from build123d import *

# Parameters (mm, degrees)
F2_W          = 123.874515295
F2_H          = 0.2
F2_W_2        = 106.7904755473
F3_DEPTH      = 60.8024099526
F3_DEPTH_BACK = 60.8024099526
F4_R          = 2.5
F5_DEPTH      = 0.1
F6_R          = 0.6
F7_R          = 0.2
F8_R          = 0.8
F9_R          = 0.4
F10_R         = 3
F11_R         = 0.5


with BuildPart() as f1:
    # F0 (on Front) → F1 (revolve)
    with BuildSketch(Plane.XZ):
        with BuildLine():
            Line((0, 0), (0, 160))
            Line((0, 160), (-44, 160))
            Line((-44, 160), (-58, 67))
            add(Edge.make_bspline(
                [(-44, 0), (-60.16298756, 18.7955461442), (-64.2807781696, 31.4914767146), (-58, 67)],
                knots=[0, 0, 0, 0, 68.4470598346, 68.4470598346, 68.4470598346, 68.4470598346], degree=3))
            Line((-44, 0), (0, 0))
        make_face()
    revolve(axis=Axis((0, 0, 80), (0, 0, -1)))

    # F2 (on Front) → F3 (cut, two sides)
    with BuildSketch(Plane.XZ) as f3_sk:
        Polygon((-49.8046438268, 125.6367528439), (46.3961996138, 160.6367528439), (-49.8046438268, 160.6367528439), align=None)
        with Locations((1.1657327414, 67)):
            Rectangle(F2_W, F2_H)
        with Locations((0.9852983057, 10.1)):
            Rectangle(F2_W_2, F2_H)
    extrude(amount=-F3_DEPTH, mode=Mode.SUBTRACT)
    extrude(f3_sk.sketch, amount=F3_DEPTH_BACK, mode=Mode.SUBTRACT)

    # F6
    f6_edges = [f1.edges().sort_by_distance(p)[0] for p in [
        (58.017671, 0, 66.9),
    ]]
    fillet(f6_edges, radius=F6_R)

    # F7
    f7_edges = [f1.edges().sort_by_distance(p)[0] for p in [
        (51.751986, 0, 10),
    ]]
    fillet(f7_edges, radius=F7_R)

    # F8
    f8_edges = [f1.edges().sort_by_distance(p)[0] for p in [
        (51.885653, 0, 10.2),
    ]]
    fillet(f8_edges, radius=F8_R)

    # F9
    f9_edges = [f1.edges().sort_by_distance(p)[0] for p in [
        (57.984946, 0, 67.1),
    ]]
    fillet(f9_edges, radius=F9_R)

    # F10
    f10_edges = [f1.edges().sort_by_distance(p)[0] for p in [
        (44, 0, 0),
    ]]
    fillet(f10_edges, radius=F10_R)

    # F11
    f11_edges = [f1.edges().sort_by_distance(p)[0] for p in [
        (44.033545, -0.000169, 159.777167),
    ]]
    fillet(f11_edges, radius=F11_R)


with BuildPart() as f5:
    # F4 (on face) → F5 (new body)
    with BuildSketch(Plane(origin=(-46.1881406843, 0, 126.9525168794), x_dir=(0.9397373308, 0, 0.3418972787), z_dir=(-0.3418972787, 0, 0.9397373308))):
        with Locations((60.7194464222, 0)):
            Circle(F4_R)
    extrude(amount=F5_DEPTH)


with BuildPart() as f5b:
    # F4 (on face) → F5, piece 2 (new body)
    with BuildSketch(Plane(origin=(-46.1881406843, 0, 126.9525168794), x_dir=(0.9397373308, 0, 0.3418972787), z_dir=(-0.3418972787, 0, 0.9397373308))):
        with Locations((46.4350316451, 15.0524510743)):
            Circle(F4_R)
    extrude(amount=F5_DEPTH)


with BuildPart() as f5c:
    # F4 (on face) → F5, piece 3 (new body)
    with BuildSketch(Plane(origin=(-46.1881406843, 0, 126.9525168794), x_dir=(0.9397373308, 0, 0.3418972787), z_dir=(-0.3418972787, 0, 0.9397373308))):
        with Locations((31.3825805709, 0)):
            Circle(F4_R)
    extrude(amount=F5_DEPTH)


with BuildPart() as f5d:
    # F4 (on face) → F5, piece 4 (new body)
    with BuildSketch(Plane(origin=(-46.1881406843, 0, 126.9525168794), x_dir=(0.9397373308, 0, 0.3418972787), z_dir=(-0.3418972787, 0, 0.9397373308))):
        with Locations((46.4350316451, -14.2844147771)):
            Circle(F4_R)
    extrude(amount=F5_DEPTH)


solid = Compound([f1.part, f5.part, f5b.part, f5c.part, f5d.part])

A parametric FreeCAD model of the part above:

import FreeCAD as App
import Part
import Sketcher


def edges_at(feature, points):
    """Names of the edges that pass closest to the given points."""
    edges = feature.Shape.Edges
    near = lambda p: min(range(len(edges)), key=lambda i: edges[i].distToShape(Part.Vertex(*p))[0])
    return sorted({f"Edge{near(p) + 1}" for p in points})

doc = App.newDocument("Part")
params = doc.addObject("Spreadsheet::Sheet", "Params")
for row, (alias, value) in enumerate([
    ("sketch1_height", "160 mm"),
    ("revolution_angle", "360 deg"),
    ("sketch2_height", "35 mm"),
    ("sketch2_height2", "0.2 mm"),
    ("fillet_radius", "0.6 mm"),
    ("fillet2_radius", "0.2 mm"),
    ("fillet3_radius", "0.8 mm"),
    ("fillet4_radius", "0.4 mm"),
    ("fillet5_radius", "3 mm"),
    ("fillet6_radius", "0.5 mm"),
    ("sketch3_diameter", "5 mm"),
    ("pad1_length", "0.1 mm"),
    ("sketch4_diameter", "5 mm"),
    ("pad2_length", "0.1 mm"),
    ("sketch5_diameter", "5 mm"),
    ("pad3_length", "0.1 mm"),
    ("sketch6_diameter", "5 mm"),
    ("pad4_length", "0.1 mm"),
], start=1):
    params.set(f"A{row}", alias)
    params.set(f"B{row}", "=" + value)
    params.setAlias(f"B{row}", alias)

body = doc.addObject("PartDesign::Body", "Body")
body.AllowCompound = True

# Sketch on XZ plane
sketch1 = doc.addObject("Sketcher::SketchObject", "Sketch")
body.addObject(sketch1)
sketch1.AttachmentSupport = (doc.XZ_Plane, [""])
sketch1.MapMode = "FlatFace"
sketch1.addGeometry([
    Part.LineSegment(App.Vector(0, 0, 0), App.Vector(0, 160, 0)),  # 0
    Part.LineSegment(App.Vector(0, 160, 0), App.Vector(-44, 160, 0)),  # 1
    Part.LineSegment(App.Vector(-44, 160, 0), App.Vector(-58, 67, 0)),  # 2
    Part.BSplineCurve([App.Vector(-44, 0, 0), App.Vector(-60.162988, 18.795546, 0), App.Vector(-64.280778, 31.491477, 0), App.Vector(-58, 67, 0)], [4, 4], [0, 68.447059835], False, 3, [1, 1, 1, 1], False),  # 3
    Part.LineSegment(App.Vector(-44, 0, 0), App.Vector(0, 0, 0)),  # 4
], False)
sketch1.addConstraint([
    Sketcher.Constraint("Block", 3),
    Sketcher.Constraint("Coincident", 0, 2, 1, 1),
    Sketcher.Constraint("Coincident", 1, 2, 2, 1),
    Sketcher.Constraint("Coincident", 2, 2, 3, 2),
    Sketcher.Constraint("Coincident", 3, 1, 4, 1),
    Sketcher.Constraint("Coincident", 4, 2, 0, 1),
    Sketcher.Constraint("Vertical", 0),
    Sketcher.Constraint("Horizontal", 1),
    Sketcher.Constraint("Horizontal", 4),
    Sketcher.Constraint("PointOnObject", 0, 2, -2),
    Sketcher.Constraint("Equal", 1, 4),
    Sketcher.Constraint("DistanceY", 0, 1, 0, 2, 160.0),
])
sketch1.setExpression("Constraints[11]", "Params.sketch1_height")
revolution = doc.addObject("PartDesign::Revolution", "Revolution")
body.addObject(revolution)
revolution.Profile = sketch1
revolution.ReferenceAxis = (sketch1, ["V_Axis"])
revolution.setExpression("Angle", "Params.revolution_angle")

# Sketch on XZ plane
sketch2 = doc.addObject("Sketcher::SketchObject", "Sketch001")
body.addObject(sketch2)
sketch2.AttachmentSupport = (doc.XZ_Plane, [""])
sketch2.MapMode = "FlatFace"
sketch2.addGeometry([
    Part.LineSegment(App.Vector(-49.804644, 125.636753, 0), App.Vector(46.3962, 160.636753, 0)),  # 0
    Part.LineSegment(App.Vector(46.3962, 160.636753, 0), App.Vector(-49.804644, 160.636753, 0)),  # 1
    Part.LineSegment(App.Vector(-49.804644, 160.636753, 0), App.Vector(-49.804644, 125.636753, 0)),  # 2
    Part.LineSegment(App.Vector(-60.771525, 67.1, 0), App.Vector(-60.771525, 66.9, 0)),  # 3
    Part.LineSegment(App.Vector(-60.771525, 66.9, 0), App.Vector(63.10299, 66.9, 0)),  # 4
    Part.LineSegment(App.Vector(63.10299, 66.9, 0), App.Vector(63.10299, 67.1, 0)),  # 5
    Part.LineSegment(App.Vector(63.10299, 67.1, 0), App.Vector(-60.771525, 67.1, 0)),  # 6
    Part.LineSegment(App.Vector(-52.409939, 10.2, 0), App.Vector(-52.409939, 10, 0)),  # 7
    Part.LineSegment(App.Vector(-52.409939, 10, 0), App.Vector(54.380536, 10, 0)),  # 8
    Part.LineSegment(App.Vector(54.380536, 10, 0), App.Vector(54.380536, 10.2, 0)),  # 9
    Part.LineSegment(App.Vector(54.380536, 10.2, 0), App.Vector(-52.409939, 10.2, 0)),  # 10
], False)
sketch2.addConstraint([
    Sketcher.Constraint("Coincident", 0, 2, 1, 1),
    Sketcher.Constraint("Coincident", 1, 2, 2, 1),
    Sketcher.Constraint("Coincident", 2, 2, 0, 1),
    Sketcher.Constraint("Coincident", 3, 2, 4, 1),
    Sketcher.Constraint("Coincident", 4, 2, 5, 1),
    Sketcher.Constraint("Coincident", 5, 2, 6, 1),
    Sketcher.Constraint("Coincident", 6, 2, 3, 1),
    Sketcher.Constraint("Coincident", 7, 2, 8, 1),
    Sketcher.Constraint("Coincident", 8, 2, 9, 1),
    Sketcher.Constraint("Coincident", 9, 2, 10, 1),
    Sketcher.Constraint("Coincident", 10, 2, 7, 1),
    Sketcher.Constraint("Horizontal", 1),
    Sketcher.Constraint("Vertical", 2),
    Sketcher.Constraint("Vertical", 3),
    Sketcher.Constraint("Horizontal", 4),
    Sketcher.Constraint("Vertical", 5),
    Sketcher.Constraint("Horizontal", 6),
    Sketcher.Constraint("Vertical", 7),
    Sketcher.Constraint("Horizontal", 8),
    Sketcher.Constraint("Vertical", 9),
    Sketcher.Constraint("Horizontal", 10),
    Sketcher.Constraint("Equal", 5, 7),
    Sketcher.Constraint("DistanceY", 2, 2, 2, 1, 35.0),
    Sketcher.Constraint("DistanceY", 3, 2, 3, 1, 0.2),
    Sketcher.Constraint("DistanceY", -1, 1, 7, 2, 10.0),
    Sketcher.Constraint("DistanceY", -1, 1, 3, 2, 66.9),
    Sketcher.Constraint("DistanceX", -1, 1, 0, 2, 46.3962),
    Sketcher.Constraint("Distance", 0, 102.369929),
    Sketcher.Constraint("DistanceX", 4, 1, 4, 2, 123.874515),
    Sketcher.Constraint("DistanceX", 8, 1, 8, 2, 106.790476),
    Sketcher.Constraint("DistanceX", -1, 1, 4, 2, 63.10299),
    Sketcher.Constraint("DistanceX", 7, 2, -1, 1, 52.409939),
    Sketcher.Constraint("DistanceY", -1, 1, 0, 2, 160.636753),
])
sketch2.setExpression("Constraints[22]", "Params.sketch2_height")
sketch2.setExpression("Constraints[23]", "Params.sketch2_height2")
pocket1 = doc.addObject("PartDesign::Pocket", "Pocket")
body.addObject(pocket1)
pocket1.Profile = sketch2
pocket1.Type = "ThroughAll"
pocket1.Midplane = True
doc.recompute()

fillet = doc.addObject("PartDesign::Fillet", "Fillet")
body.addObject(fillet)
fillet.Base = (pocket1, edges_at(pocket1, [(58.018, 0, 66.9)]))
fillet.setExpression("Radius", "Params.fillet_radius")
doc.recompute()

fillet2 = doc.addObject("PartDesign::Fillet", "Fillet001")
body.addObject(fillet2)
fillet2.Base = (fillet, edges_at(fillet, [(51.752, 0, 10)]))
fillet2.setExpression("Radius", "Params.fillet2_radius")
doc.recompute()

fillet3 = doc.addObject("PartDesign::Fillet", "Fillet002")
body.addObject(fillet3)
fillet3.Base = (fillet2, edges_at(fillet2, [(51.886, 0, 10.2)]))
fillet3.setExpression("Radius", "Params.fillet3_radius")
doc.recompute()

fillet4 = doc.addObject("PartDesign::Fillet", "Fillet003")
body.addObject(fillet4)
fillet4.Base = (fillet3, edges_at(fillet3, [(57.985, 0, 67.1)]))
fillet4.setExpression("Radius", "Params.fillet4_radius")
doc.recompute()

fillet5 = doc.addObject("PartDesign::Fillet", "Fillet004")
body.addObject(fillet5)
fillet5.Base = (fillet4, edges_at(fillet4, [(44, 0, 0)]))
fillet5.setExpression("Radius", "Params.fillet5_radius")
doc.recompute()

fillet6 = doc.addObject("PartDesign::Fillet", "Fillet005")
body.addObject(fillet6)
fillet6.Base = (fillet5, edges_at(fillet5, [(-2.551, -46.515, 142.829)]))
fillet6.setExpression("Radius", "Params.fillet6_radius")
body2 = doc.addObject("PartDesign::Body", "Body001")

# Sketch on an angled plane
sketch3 = doc.addObject("Sketcher::SketchObject", "Sketch002")
body2.addObject(sketch3)
sketch3.Placement = App.Placement(App.Vector(-46.188141, 0, 126.952517), App.Rotation(App.Vector(0.939737331, 0, 0.341897279), App.Vector(0, 1.000000001, 0), App.Vector(-0.341897279, 0, 0.939737331), "ZXY"))
sketch3.addGeometry(Part.Circle(App.Vector(60.719446, 0, 0), App.Vector(0, 0, 1), 2.5), False)
sketch3.addConstraint([
    Sketcher.Constraint("PointOnObject", 0, 3, -1),
    Sketcher.Constraint("Diameter", 0, 5.0),
    Sketcher.Constraint("DistanceX", -1, 1, 0, 3, 60.719446),
])
sketch3.setExpression("Constraints[1]", "Params.sketch3_diameter")
pad1 = doc.addObject("PartDesign::Pad", "Pad")
body2.addObject(pad1)
pad1.Profile = sketch3
pad1.setExpression("Length", "Params.pad1_length")
body3 = doc.addObject("PartDesign::Body", "Body002")

# Sketch on an angled plane
sketch4 = doc.addObject("Sketcher::SketchObject", "Sketch003")
body3.addObject(sketch4)
sketch4.Placement = App.Placement(App.Vector(-46.188141, 0, 126.952517), App.Rotation(App.Vector(0.939737331, 0, 0.341897279), App.Vector(0, 1.000000001, 0), App.Vector(-0.341897279, 0, 0.939737331), "ZXY"))
sketch4.addGeometry(Part.Circle(App.Vector(46.435032, 15.052451, 0), App.Vector(0, 0, 1), 2.5), False)
sketch4.addConstraint([
    Sketcher.Constraint("Diameter", 0, 5.0),
    Sketcher.Constraint("DistanceX", -1, 1, 0, 3, 46.435032),
    Sketcher.Constraint("DistanceY", -1, 1, 0, 3, 15.052451),
])
sketch4.setExpression("Constraints[0]", "Params.sketch4_diameter")
pad2 = doc.addObject("PartDesign::Pad", "Pad001")
body3.addObject(pad2)
pad2.Profile = sketch4
pad2.setExpression("Length", "Params.pad2_length")
body4 = doc.addObject("PartDesign::Body", "Body003")

# Sketch on an angled plane
sketch5 = doc.addObject("Sketcher::SketchObject", "Sketch004")
body4.addObject(sketch5)
sketch5.Placement = App.Placement(App.Vector(-46.188141, 0, 126.952517), App.Rotation(App.Vector(0.939737331, 0, 0.341897279), App.Vector(0, 1.000000001, 0), App.Vector(-0.341897279, 0, 0.939737331), "ZXY"))
sketch5.addGeometry(Part.Circle(App.Vector(31.382581, 0, 0), App.Vector(0, 0, 1), 2.5), False)
sketch5.addConstraint([
    Sketcher.Constraint("PointOnObject", 0, 3, -1),
    Sketcher.Constraint("Diameter", 0, 5.0),
    Sketcher.Constraint("DistanceX", -1, 1, 0, 3, 31.382581),
])
sketch5.setExpression("Constraints[1]", "Params.sketch5_diameter")
pad3 = doc.addObject("PartDesign::Pad", "Pad002")
body4.addObject(pad3)
pad3.Profile = sketch5
pad3.setExpression("Length", "Params.pad3_length")
body5 = doc.addObject("PartDesign::Body", "Body004")

# Sketch on an angled plane
sketch6 = doc.addObject("Sketcher::SketchObject", "Sketch005")
body5.addObject(sketch6)
sketch6.Placement = App.Placement(App.Vector(-46.188141, 0, 126.952517), App.Rotation(App.Vector(0.939737331, 0, 0.341897279), App.Vector(0, 1.000000001, 0), App.Vector(-0.341897279, 0, 0.939737331), "ZXY"))
sketch6.addGeometry(Part.Circle(App.Vector(46.435032, -14.284415, 0), App.Vector(0, 0, 1), 2.5), False)
sketch6.addConstraint([
    Sketcher.Constraint("Diameter", 0, 5.0),
    Sketcher.Constraint("DistanceX", -1, 1, 0, 3, 46.435032),
    Sketcher.Constraint("DistanceY", 0, 3, -1, 1, 14.284415),
])
sketch6.setExpression("Constraints[0]", "Params.sketch6_diameter")
pad4 = doc.addObject("PartDesign::Pad", "Pad003")
body5.addObject(pad4)
pad4.Profile = sketch6
pad4.setExpression("Length", "Params.pad4_length")

doc.recompute()
